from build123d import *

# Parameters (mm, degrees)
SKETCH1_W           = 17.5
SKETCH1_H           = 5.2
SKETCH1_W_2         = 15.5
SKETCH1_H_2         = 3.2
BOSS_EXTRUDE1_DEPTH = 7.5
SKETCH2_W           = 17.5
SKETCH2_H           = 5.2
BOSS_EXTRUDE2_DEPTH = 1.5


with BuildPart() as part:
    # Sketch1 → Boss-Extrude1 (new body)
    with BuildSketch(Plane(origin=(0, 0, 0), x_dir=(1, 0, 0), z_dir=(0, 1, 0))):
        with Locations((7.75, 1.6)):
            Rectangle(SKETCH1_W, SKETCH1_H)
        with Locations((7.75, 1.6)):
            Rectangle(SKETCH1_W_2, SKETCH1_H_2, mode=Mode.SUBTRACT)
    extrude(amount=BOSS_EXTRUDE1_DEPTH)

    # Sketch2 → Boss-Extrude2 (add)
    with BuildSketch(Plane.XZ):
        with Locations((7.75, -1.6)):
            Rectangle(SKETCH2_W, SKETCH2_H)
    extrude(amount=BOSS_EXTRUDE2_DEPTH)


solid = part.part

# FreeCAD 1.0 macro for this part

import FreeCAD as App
import Part
import Sketcher
from FreeCAD import Vector


def add_polygon(sketch, points):
    """Adds a closed chain of lines whose ends are joined by coincident constraints."""
    first, n = sketch.GeometryCount, len(points)
    for a, b in zip(points, points[1:] + points[:1]):
        sketch.addGeometry(Part.LineSegment(App.Vector(*a, 0), App.Vector(*b, 0)), False)
    for i in range(n):
        sketch.addConstraint(Sketcher.Constraint("Coincident", first + i, 2, first + (i + 1) % n, 1))

doc = App.newDocument("Part")
body = doc.addObject("PartDesign::Body", "Body")

# Sketch on XZ plane
sketch1 = doc.addObject("Sketcher::SketchObject", "Sketch")
body.addObject(sketch1)
sketch1.AttachmentSupport = (doc.XZ_Plane, [""])
sketch1.MapMode = "FlatFace"
add_polygon(sketch1, [(-1, -4.2), (-1, 1), (16.5, 1), (16.5, -4.2)])  # lines 0-3
add_polygon(sketch1, [(15.5, 0), (0, 0), (0, -3.2), (15.5, -3.2)])  # lines 4-7
sketch1.addConstraint([
    Sketcher.Constraint("Vertical", 0),
    Sketcher.Constraint("Horizontal", 1),
    Sketcher.Constraint("Vertical", 2),
    Sketcher.Constraint("Horizontal", 3),
    Sketcher.Constraint("Horizontal", 4),
    Sketcher.Constraint("Vertical", 5),
    Sketcher.Constraint("Horizontal", 6),
    Sketcher.Constraint("Vertical", 7),
    Sketcher.Constraint("Coincident", 4, 2, -1, 1),
    Sketcher.Constraint("DistanceX", 1, 1, 1, 2, 17.5),
    Sketcher.Constraint("DistanceX", 4, 2, 4, 1, 15.5),
    Sketcher.Constraint("DistanceY", 0, 1, 0, 2, 5.2),
    Sketcher.Constraint("DistanceY", 5, 2, 5, 1, 3.2),
    Sketcher.Constraint("DistanceX", 0, 2, -1, 1, 1.0),
    Sketcher.Constraint("DistanceY", -1, 1, 0, 2, 1.0),
])
pad1 = doc.addObject("PartDesign::Pad", "Pad")
body.addObject(pad1)
pad1.Profile = sketch1
pad1.Length = 7.5
pad1.Reversed = True

# Sketch on XZ plane
sketch2 = doc.addObject("Sketcher::SketchObject", "Sketch001")
body.addObject(sketch2)
sketch2.AttachmentSupport = (doc.XZ_Plane, [""])
sketch2.MapMode = "FlatFace"
add_polygon(sketch2, [(-1, 1), (-1, -4), (16, -4), (16, 1)])  # lines 0-3
sketch2.addConstraint([
    Sketcher.Constraint("Vertical", 0),
    Sketcher.Constraint("Horizontal", 1),
    Sketcher.Constraint("Vertical", 2),
    Sketcher.Constraint("Horizontal", 3),
    Sketcher.Constraint("DistanceX", 1, 1, 1, 2, 17.5),
    Sketcher.Constraint("DistanceY", 0, 2, 0, 1, 5.2),
    Sketcher.Constraint("DistanceX", 0, 2, -1, 1, 1.0),
    Sketcher.Constraint("DistanceY", -1, 1, 2, 2, 1.0),
])
pad2 = doc.addObject("PartDesign::Pad", "Pad001")
body.addObject(pad2)
pad2.Profile = sketch2
pad2.Length = 1.5

doc.recompute()
